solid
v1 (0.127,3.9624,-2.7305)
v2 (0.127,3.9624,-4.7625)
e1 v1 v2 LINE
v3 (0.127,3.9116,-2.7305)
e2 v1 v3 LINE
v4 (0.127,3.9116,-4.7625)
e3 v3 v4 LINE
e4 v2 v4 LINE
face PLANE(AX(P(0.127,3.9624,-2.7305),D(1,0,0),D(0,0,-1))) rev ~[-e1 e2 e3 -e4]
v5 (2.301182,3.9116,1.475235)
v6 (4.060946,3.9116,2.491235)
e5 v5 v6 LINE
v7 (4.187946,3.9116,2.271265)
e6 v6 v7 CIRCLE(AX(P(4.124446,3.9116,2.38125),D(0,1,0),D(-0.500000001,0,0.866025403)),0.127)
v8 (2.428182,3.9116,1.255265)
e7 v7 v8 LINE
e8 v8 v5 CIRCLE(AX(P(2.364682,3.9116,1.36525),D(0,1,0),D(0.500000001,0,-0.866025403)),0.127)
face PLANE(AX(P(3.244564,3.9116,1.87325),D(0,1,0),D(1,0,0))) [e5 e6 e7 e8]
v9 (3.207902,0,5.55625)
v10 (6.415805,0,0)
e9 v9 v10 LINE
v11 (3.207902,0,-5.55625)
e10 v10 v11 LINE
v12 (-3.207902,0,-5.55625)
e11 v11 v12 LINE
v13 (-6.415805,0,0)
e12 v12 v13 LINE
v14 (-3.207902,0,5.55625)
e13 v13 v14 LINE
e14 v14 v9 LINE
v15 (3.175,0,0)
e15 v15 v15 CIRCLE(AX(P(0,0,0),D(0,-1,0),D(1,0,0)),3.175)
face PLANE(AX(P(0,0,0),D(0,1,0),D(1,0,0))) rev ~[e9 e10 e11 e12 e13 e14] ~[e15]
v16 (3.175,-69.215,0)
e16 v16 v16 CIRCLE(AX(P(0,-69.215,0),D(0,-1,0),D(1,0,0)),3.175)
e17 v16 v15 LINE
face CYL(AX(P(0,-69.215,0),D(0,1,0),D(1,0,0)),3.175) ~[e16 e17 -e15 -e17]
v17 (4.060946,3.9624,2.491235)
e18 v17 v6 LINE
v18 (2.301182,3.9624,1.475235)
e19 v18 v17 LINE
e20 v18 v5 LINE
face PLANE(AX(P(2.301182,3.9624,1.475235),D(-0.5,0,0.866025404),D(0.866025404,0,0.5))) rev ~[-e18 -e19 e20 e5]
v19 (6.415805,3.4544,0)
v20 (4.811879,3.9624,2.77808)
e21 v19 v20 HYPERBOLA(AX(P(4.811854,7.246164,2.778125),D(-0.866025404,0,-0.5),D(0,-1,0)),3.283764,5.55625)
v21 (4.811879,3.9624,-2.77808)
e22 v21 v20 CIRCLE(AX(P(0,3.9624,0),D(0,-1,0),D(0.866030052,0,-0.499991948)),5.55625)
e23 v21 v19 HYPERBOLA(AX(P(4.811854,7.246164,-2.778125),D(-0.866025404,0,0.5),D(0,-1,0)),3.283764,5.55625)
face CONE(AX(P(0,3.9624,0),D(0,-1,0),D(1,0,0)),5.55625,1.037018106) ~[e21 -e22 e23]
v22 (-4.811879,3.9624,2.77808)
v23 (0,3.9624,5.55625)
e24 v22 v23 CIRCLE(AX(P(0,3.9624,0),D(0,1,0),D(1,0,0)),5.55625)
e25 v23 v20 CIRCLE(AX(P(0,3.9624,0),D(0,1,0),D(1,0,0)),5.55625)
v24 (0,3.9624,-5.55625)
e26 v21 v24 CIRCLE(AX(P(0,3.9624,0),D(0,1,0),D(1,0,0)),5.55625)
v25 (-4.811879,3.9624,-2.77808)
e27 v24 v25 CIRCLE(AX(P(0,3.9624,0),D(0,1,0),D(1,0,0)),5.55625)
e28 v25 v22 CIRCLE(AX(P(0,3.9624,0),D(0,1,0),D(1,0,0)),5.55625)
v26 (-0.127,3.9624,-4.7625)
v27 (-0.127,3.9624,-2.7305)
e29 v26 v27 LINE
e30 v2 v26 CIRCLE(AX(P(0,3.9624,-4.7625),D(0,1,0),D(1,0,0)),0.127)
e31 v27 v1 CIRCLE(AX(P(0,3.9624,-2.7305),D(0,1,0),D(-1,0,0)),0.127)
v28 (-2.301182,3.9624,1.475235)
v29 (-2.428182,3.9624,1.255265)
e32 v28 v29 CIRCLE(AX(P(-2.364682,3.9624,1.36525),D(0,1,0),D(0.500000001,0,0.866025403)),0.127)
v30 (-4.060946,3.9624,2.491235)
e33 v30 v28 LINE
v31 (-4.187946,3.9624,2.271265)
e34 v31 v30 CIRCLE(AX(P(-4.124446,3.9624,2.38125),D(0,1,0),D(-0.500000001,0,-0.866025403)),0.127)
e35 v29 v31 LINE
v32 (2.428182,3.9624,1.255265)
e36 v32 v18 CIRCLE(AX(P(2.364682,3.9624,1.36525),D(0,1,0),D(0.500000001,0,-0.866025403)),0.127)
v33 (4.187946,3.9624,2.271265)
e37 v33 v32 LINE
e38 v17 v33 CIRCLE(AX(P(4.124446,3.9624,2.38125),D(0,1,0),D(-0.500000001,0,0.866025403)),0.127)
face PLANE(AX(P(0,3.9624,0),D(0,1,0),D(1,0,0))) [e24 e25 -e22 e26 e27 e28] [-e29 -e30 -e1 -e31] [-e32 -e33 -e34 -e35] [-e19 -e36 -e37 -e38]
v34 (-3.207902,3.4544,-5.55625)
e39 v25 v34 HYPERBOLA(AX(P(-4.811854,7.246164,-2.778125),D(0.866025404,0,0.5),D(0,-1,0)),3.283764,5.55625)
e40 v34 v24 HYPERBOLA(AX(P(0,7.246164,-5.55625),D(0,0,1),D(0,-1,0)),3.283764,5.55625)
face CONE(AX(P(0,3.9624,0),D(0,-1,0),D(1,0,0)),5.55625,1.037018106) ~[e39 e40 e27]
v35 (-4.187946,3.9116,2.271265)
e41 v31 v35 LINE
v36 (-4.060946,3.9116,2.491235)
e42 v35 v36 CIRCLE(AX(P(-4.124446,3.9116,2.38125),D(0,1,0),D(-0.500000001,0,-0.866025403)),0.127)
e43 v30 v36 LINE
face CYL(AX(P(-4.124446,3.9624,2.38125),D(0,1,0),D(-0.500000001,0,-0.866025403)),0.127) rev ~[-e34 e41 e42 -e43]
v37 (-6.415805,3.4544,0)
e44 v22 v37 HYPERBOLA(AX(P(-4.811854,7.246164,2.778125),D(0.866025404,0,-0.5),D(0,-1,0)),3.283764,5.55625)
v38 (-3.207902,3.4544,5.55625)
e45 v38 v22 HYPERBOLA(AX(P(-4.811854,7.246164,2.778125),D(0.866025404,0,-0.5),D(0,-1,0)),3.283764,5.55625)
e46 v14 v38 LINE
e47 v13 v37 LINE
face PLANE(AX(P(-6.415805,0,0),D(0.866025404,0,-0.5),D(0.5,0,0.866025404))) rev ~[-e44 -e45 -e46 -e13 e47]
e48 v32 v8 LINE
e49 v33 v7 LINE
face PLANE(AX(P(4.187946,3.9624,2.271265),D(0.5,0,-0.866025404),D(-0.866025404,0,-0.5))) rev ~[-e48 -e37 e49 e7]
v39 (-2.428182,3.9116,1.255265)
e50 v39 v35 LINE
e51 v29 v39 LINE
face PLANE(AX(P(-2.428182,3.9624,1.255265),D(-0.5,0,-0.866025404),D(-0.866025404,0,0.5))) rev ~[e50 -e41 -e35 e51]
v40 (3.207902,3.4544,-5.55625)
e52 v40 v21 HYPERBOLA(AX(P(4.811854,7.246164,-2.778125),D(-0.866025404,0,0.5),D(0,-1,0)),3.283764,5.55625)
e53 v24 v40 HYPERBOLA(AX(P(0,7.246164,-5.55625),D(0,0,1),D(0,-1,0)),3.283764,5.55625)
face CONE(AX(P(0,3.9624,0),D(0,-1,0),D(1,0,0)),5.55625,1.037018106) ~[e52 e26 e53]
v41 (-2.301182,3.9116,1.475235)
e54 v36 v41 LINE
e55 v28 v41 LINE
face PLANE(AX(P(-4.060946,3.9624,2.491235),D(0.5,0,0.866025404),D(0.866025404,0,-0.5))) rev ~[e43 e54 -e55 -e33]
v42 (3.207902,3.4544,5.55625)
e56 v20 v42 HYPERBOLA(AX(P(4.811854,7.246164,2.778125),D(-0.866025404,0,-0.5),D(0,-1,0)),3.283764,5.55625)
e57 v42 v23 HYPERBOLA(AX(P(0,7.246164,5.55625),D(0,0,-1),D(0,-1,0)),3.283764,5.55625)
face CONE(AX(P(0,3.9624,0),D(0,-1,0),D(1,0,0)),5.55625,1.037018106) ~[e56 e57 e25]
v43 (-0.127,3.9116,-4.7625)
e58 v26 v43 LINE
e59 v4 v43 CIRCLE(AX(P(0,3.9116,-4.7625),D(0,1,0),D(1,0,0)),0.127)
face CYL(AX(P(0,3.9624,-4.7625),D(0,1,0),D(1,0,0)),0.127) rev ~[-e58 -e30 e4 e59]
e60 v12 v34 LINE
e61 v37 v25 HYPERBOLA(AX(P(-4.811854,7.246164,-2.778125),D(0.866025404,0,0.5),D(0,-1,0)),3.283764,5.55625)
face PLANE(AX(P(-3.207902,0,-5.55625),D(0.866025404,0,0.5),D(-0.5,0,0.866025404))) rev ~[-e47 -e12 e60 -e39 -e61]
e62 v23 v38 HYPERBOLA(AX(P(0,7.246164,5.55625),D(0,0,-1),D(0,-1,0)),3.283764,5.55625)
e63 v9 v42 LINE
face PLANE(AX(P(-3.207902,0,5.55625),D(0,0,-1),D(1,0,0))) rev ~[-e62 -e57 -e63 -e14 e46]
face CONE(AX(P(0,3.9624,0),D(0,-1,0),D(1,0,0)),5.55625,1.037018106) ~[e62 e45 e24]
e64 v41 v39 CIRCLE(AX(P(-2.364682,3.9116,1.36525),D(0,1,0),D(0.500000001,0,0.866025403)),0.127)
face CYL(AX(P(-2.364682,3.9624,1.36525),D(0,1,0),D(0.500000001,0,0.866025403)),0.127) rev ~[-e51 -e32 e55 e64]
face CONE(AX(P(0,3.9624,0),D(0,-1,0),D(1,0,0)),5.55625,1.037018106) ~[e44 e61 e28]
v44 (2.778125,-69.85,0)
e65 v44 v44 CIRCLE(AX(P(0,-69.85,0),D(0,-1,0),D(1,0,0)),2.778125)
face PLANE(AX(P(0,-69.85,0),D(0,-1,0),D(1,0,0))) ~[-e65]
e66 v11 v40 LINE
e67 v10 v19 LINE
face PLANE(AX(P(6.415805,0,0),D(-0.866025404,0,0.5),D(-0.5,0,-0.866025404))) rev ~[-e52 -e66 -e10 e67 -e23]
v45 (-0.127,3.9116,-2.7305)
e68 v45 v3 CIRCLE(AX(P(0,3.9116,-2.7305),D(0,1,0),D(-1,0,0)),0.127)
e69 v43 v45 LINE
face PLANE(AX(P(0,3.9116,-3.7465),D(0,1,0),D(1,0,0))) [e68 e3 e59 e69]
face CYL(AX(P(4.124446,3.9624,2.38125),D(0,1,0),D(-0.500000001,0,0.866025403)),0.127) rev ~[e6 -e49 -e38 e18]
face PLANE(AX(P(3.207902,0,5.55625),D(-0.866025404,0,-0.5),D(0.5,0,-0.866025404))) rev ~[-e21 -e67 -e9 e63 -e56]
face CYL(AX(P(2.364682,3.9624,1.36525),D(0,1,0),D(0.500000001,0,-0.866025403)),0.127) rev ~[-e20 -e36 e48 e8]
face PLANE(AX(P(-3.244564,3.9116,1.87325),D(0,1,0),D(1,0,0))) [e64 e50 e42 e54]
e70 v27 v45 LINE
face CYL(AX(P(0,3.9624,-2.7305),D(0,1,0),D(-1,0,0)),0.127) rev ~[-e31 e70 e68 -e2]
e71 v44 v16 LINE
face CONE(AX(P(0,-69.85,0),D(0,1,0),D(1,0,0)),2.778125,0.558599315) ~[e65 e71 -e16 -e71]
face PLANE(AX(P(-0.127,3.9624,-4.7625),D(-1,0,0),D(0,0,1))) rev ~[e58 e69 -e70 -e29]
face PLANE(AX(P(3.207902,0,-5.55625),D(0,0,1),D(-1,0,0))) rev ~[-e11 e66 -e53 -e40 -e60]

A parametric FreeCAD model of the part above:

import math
import FreeCAD as App
import Part
import Sketcher

V = App.Vector
Q = App.Units.Quantity

doc = App.newDocument("Part")
params = doc.addObject("Spreadsheet::Sheet", "Params")
for row, (alias, value) in enumerate([
    ("pad1_length", "0.156 in"),
    ("sketch2_height", "0.02 in"),
    ("groove_angle", "360 deg"),
    ("sketch3_radius", "0.005 in"),
    ("sketch3_height", "0.08 in"),
    ("sketch3_length", "0.08 in"),
    ("pocket1_length", "0.002 in"),
    ("sketch4_height", "2.75 in"),
    ("sketch4_width", "0.109375 in"),
    ("sketch4_width2", "0.125 in"),
    ("sketch4_height2", "2.725 in"),
    ("revolution_angle", "360 deg"),
], start=1):
    params.set(f"A{row}", alias)
    params.set(f"B{row}", "=" + value)
    params.setAlias(f"B{row}", alias)

body = doc.addObject("PartDesign::Body", "Body")

sketch1 = body.newObject("Sketcher::SketchObject", "Sketch")
sketch1.AttachmentSupport = (doc.getObject("XZ_Plane"), [""])
sketch1.MapMode = "FlatFace"
sketch1.addGeometry([
    Part.LineSegment(V(6.415805, 0, 0), V(3.207902, -5.55625, 0)),
    Part.LineSegment(V(3.207902, -5.55625, 0), V(-3.207902, -5.55625, 0)),
    Part.LineSegment(V(-3.207902, -5.55625, 0), V(-6.415805, 0, 0)),
    Part.LineSegment(V(-6.415805, 0, 0), V(-3.207902, 5.55625, 0)),
    Part.LineSegment(V(-3.207902, 5.55625, 0), V(3.207902, 5.55625, 0)),
    Part.LineSegment(V(3.207902, 5.55625, 0), V(6.415805, 0, 0)),
], False)
sketch1.addConstraint([
    Sketcher.Constraint("Coincident", 0, 2, 1, 1),
    Sketcher.Constraint("Coincident", 1, 2, 2, 1),
    Sketcher.Constraint("Coincident", 2, 2, 3, 1),
    Sketcher.Constraint("Coincident", 3, 2, 4, 1),
    Sketcher.Constraint("Coincident", 4, 2, 5, 1),
    Sketcher.Constraint("Coincident", 5, 2, 0, 1),
    Sketcher.Constraint("Horizontal", 1),
    Sketcher.Constraint("Horizontal", 4),
    Sketcher.Constraint("Symmetric", 0, 2, 3, 2, -1, 1),
    Sketcher.Constraint("Symmetric", 2, 2, 5, 2, -1, 1),
    Sketcher.Constraint("PointOnObject", 2, 2, -1),
    Sketcher.Constraint("Parallel", 2, 5),
    Sketcher.Constraint("Vertical", 1, 2, 3, 2),
    Sketcher.Constraint("Angle", 0, Q("-120 deg")),
    Sketcher.Constraint("DistanceY", 0, 2, -1, 1, Q("0.21875 in")),
    Sketcher.Constraint("DistanceX", 1, 2, 1, 1, 6.415805),
])
pad1 = body.newObject("PartDesign::Pad", "Pad")
pad1.Profile = sketch1
pad1.setExpression("Length", "Params.pad1_length")
pad1.Reversed = True

sketch2 = body.newObject("Sketcher::SketchObject", "Sketch001")
sketch2.AttachmentSupport = (doc.getObject("XY_Plane"), [""])
sketch2.MapMode = "FlatFace"
sketch2.addGeometry([
    Part.LineSegment(V(5.55625, 3.9624, 0), V(6.415805, 3.4544, 0)),
    Part.LineSegment(V(6.415805, 3.4544, 0), V(6.415805, 3.9624, 0)),
    Part.LineSegment(V(6.415805, 3.9624, 0), V(5.55625, 3.9624, 0)),
], False)
sketch2.addConstraint([
    Sketcher.Constraint("Coincident", 0, 2, 1, 1),
    Sketcher.Constraint("Coincident", 1, 2, 2, 1),
    Sketcher.Constraint("Coincident", 2, 2, 0, 1),
    Sketcher.Constraint("Vertical", 1),
    Sketcher.Constraint("Horizontal", 2),
    Sketcher.Constraint("DistanceY", 1, 1, 1, 2, Q("0.02 in")),
    Sketcher.Constraint("DistanceY", -1, 1, 0, 2, Q("0.136 in")),
    Sketcher.Constraint("DistanceX", -1, 1, 2, 2, Q("0.21875 in")),
    Sketcher.Constraint("Distance", 0, 0.998448),
])
sketch2.setExpression("Constraints[5]", "Params.sketch2_height")
groove = body.newObject("PartDesign::Groove", "Groove")
groove.Profile = sketch2
groove.ReferenceAxis = (sketch2, ["V_Axis"])
groove.setExpression("Angle", "Params.groove_angle")

sketch3 = body.newObject("Sketcher::SketchObject", "Sketch002")
sketch3.AttachmentSupport = (doc.getObject("XZ_Plane"), [""])
sketch3.MapMode = "FlatFace"
sketch3.AttachmentOffset = App.Placement(V(0, 0, -0.156 * 25.4), App.Rotation())
sketch3.addGeometry([
    Part.LineSegment(V(-0.127, -2.7305, 0), V(-0.127, -4.7625, 0)),
    Part.ArcOfCircle(Part.Circle(V(0, -4.7625, 0), V(0, 0, 1), 0.127), math.radians(180), math.radians(360)),
    Part.LineSegment(V(0.127, -4.7625, 0), V(0.127, -2.7305, 0)),
    Part.ArcOfCircle(Part.Circle(V(0, -2.7305, 0), V(0, 0, 1), 0.127), math.radians(0), math.radians(180)),
    Part.LineSegment(V(-2.301182, 1.475235, 0), V(-4.060946, 2.491235, 0)),
    Part.ArcOfCircle(Part.Circle(V(-4.124446, 2.38125, 0), V(0, 0, 1), 0.127), math.radians(60), math.radians(240)),
    Part.LineSegment(V(-4.187946, 2.271265, 0), V(-2.428182, 1.255265, 0)),
    Part.ArcOfCircle(Part.Circle(V(-2.364682, 1.36525, 0), V(0, 0, 1), 0.127), math.radians(-120), math.radians(60)),
    Part.LineSegment(V(2.428182, 1.255265, 0), V(4.187946, 2.271265, 0)),
    Part.ArcOfCircle(Part.Circle(V(4.124446, 2.38125, 0), V(0, 0, 1), 0.127), math.radians(-60), math.radians(120)),
    Part.LineSegment(V(4.060946, 2.491235, 0), V(2.301182, 1.475235, 0)),
    Part.ArcOfCircle(Part.Circle(V(2.364682, 1.36525, 0), V(0, 0, 1), 0.127), math.radians(120), math.radians(300)),
], False)
sketch3.addConstraint([
    Sketcher.Constraint("Tangent", 0, 2, 1, 1),
    Sketcher.Constraint("Tangent", 1, 2, 2, 1),
    Sketcher.Constraint("Tangent", 2, 2, 3, 1),
    Sketcher.Constraint("Tangent", 3, 2, 0, 1),
    Sketcher.Constraint("Tangent", 4, 2, 5, 1),
    Sketcher.Constraint("Tangent", 5, 2, 6, 1),
    Sketcher.Constraint("Tangent", 6, 2, 7, 1),
    Sketcher.Constraint("Tangent", 7, 2, 4, 1),
    Sketcher.Constraint("Tangent", 8, 2, 9, 1),
    Sketcher.Constraint("Tangent", 9, 2, 10, 1),
    Sketcher.Constraint("Tangent", 10, 2, 11, 1),
    Sketcher.Constraint("Tangent", 11, 2, 8, 1),
    Sketcher.Constraint("Vertical", 0),
    Sketcher.Constraint("Vertical", 2),
    Sketcher.Constraint("Equal", 3, 5),
    Sketcher.Constraint("Equal", 5, 7),
    Sketcher.Constraint("Equal", 7, 9),
    Sketcher.Constraint("Equal", 9, 11),
    Sketcher.Constraint("Symmetric", 5, 3, 9, 3, -2),
    Sketcher.Constraint("Symmetric", 7, 3, 11, 3, -2),
    Sketcher.Constraint("PointOnObject", 1, 3, -2),
    Sketcher.Constraint("Angle", 4, Q("150 deg")),
    Sketcher.Constraint("Radius", 1, Q("0.005 in")),
    Sketcher.Constraint("DistanceY", 0, 2, 0, 1, Q("0.08 in")),
    Sketcher.Constraint("Distance", 4, Q("0.08 in")),
    Sketcher.Constraint("DistanceY", 1, 3, -1, 1, Q("0.1875 in")),
    Sketcher.Constraint("DistanceY", -1, 1, 5, 3, Q("0.09375 in")),
    Sketcher.Constraint("DistanceX", 7, 3, 9, 3, 6.489128),
])
sketch3.setExpression("Constraints[22]", "Params.sketch3_radius")
sketch3.setExpression("Constraints[23]", "Params.sketch3_height")
sketch3.setExpression("Constraints[24]", "Params.sketch3_length")
pocket1 = body.newObject("PartDesign::Pocket", "Pocket")
pocket1.Profile = sketch3
pocket1.setExpression("Length", "Params.pocket1_length")
pocket1.Reversed = True

sketch4 = body.newObject("Sketcher::SketchObject", "Sketch003")
sketch4.AttachmentSupport = (doc.getObject("XY_Plane"), [""])
sketch4.MapMode = "FlatFace"
sketch4.addGeometry([
    Part.LineSegment(V(0, 0, 0), V(0, -69.85, 0)),
    Part.LineSegment(V(0, -69.85, 0), V(2.778125, -69.85, 0)),
    Part.LineSegment(V(2.778125, -69.85, 0), V(3.175, -69.215, 0)),
    Part.LineSegment(V(3.175, -69.215, 0), V(3.175, 0, 0)),
    Part.LineSegment(V(3.175, 0, 0), V(0, 0, 0)),
], False)
sketch4.addConstraint([
    Sketcher.Constraint("Coincident", 0, 2, 1, 1),
    Sketcher.Constraint("Coincident", 1, 2, 2, 1),
    Sketcher.Constraint("Coincident", 2, 2, 3, 1),
    Sketcher.Constraint("Coincident", 3, 2, 4, 1),
    Sketcher.Constraint("Coincident", 4, 2, 0, 1),
    Sketcher.Constraint("Vertical", 0),
    Sketcher.Constraint("Horizontal", 1),
    Sketcher.Constraint("Vertical", 3),
    Sketcher.Constraint("Horizontal", 4),
    Sketcher.Constraint("Coincident", 4, 2, -1, 1),
    Sketcher.Constraint("DistanceY", 0, 2, 0, 1, Q("2.75 in")),
    Sketcher.Constraint("DistanceX", 1, 1, 1, 2, Q("0.109375 in")),
    Sketcher.Constraint("DistanceX", 4, 2, 4, 1, Q("0.125 in")),
    Sketcher.Constraint("DistanceY", 3, 1, 3, 2, Q("2.725 in")),
])
sketch4.setExpression("Constraints[10]", "Params.sketch4_height")
sketch4.setExpression("Constraints[11]", "Params.sketch4_width")
sketch4.setExpression("Constraints[12]", "Params.sketch4_width2")
sketch4.setExpression("Constraints[13]", "Params.sketch4_height2")
revolution = body.newObject("PartDesign::Revolution", "Revolution")
revolution.Profile = sketch4
revolution.ReferenceAxis = (sketch4, ["V_Axis"])
revolution.setExpression("Angle", "Params.revolution_angle")

doc.recompute()
